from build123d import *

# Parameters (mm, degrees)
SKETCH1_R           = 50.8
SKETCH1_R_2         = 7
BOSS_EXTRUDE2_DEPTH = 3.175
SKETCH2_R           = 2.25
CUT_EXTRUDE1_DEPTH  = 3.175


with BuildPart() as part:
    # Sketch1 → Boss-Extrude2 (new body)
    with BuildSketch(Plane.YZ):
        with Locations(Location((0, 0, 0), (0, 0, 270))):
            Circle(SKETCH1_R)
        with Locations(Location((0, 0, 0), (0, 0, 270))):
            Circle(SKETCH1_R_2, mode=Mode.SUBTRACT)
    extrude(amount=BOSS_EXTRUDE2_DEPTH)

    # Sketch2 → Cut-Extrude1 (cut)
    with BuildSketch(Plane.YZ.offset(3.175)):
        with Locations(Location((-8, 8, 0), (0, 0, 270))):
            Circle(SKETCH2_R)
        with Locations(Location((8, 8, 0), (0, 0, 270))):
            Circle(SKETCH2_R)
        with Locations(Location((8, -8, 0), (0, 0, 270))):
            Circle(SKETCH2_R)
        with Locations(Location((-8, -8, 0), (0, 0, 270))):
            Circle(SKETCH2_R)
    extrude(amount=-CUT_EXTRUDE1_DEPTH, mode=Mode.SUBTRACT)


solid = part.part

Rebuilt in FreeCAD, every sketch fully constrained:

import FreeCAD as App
import Part
import Sketcher
Q = App.Units.Quantity

doc = App.newDocument("Part")
body = doc.addObject("PartDesign::Body", "Body")

# Sketch on YZ plane
sketch1 = body.newObject("Sketcher::SketchObject", "Sketch")
sketch1.AttachmentSupport = (doc.getObject("YZ_Plane"), [""])
sketch1.MapMode = "FlatFace"
sketch1.addGeometry(Part.Circle(App.Vector(0, 0, 0), App.Vector(0, 0, 1), 51), False)
sketch1.addGeometry(Part.Circle(App.Vector(0, 0, 0), App.Vector(0, 0, 1), 7), False)
sketch1.addConstraint(Sketcher.Constraint("Coincident", 0, 3, -1, 1))
sketch1.addConstraint(Sketcher.Constraint("Coincident", 1, 3, -1, 1))
sketch1.addConstraint(Sketcher.Constraint("Diameter", 1, Q("14 mm")))
sketch1.addConstraint(Sketcher.Constraint("Diameter", 0, Q("101.6 mm")))
pad1 = body.newObject("PartDesign::Pad", "Pad")
pad1.Profile = sketch1
pad1.Length = 3.175

# Sketch on YZ plane
sketch2 = body.newObject("Sketcher::SketchObject", "Sketch001")
sketch2.AttachmentSupport = (doc.getObject("YZ_Plane"), [""])
sketch2.MapMode = "FlatFace"
sketch2.AttachmentOffset = App.Placement(App.Vector(0, 0, 3.175), App.Rotation())
sketch2.addGeometry(Part.Circle(App.Vector(-8, 8, 0), App.Vector(0, 0, 1), 2.2), False)
sketch2.addGeometry(Part.Circle(App.Vector(8, 8, 0), App.Vector(0, 0, 1), 2.2), False)
sketch2.addGeometry(Part.Circle(App.Vector(8, -8, 0), App.Vector(0, 0, 1), 2.2), False)
sketch2.addGeometry(Part.Circle(App.Vector(-8, -8, 0), App.Vector(0, 0, 1), 2.2), False)
sketch2.addConstraint(Sketcher.Constraint("Equal", 0, 1))
sketch2.addConstraint(Sketcher.Constraint("Equal", 1, 2))
sketch2.addConstraint(Sketcher.Constraint("Equal", 2, 3))
sketch2.addConstraint(Sketcher.Constraint("Symmetric", 0, 3, 2, 3, -1, 1))
sketch2.addConstraint(Sketcher.Constraint("Symmetric", 1, 3, 3, 3, -1, 1))
sketch2.addConstraint(Sketcher.Constraint("Symmetric", 0, 3, 1, 3, -2))
sketch2.addConstraint(Sketcher.Constraint("Diameter", 0, Q("4.5 mm")))
sketch2.addConstraint(Sketcher.Constraint("DistanceX", 0, 3, -1, 1, Q("8 mm")))
sketch2.addConstraint(Sketcher.Constraint("DistanceY", -1, 1, 0, 3, Q("8 mm")))
pocket1 = body.newObject("PartDesign::Pocket", "Pocket")
pocket1.Profile = sketch2
pocket1.Length = 3.175

doc.recompute()
